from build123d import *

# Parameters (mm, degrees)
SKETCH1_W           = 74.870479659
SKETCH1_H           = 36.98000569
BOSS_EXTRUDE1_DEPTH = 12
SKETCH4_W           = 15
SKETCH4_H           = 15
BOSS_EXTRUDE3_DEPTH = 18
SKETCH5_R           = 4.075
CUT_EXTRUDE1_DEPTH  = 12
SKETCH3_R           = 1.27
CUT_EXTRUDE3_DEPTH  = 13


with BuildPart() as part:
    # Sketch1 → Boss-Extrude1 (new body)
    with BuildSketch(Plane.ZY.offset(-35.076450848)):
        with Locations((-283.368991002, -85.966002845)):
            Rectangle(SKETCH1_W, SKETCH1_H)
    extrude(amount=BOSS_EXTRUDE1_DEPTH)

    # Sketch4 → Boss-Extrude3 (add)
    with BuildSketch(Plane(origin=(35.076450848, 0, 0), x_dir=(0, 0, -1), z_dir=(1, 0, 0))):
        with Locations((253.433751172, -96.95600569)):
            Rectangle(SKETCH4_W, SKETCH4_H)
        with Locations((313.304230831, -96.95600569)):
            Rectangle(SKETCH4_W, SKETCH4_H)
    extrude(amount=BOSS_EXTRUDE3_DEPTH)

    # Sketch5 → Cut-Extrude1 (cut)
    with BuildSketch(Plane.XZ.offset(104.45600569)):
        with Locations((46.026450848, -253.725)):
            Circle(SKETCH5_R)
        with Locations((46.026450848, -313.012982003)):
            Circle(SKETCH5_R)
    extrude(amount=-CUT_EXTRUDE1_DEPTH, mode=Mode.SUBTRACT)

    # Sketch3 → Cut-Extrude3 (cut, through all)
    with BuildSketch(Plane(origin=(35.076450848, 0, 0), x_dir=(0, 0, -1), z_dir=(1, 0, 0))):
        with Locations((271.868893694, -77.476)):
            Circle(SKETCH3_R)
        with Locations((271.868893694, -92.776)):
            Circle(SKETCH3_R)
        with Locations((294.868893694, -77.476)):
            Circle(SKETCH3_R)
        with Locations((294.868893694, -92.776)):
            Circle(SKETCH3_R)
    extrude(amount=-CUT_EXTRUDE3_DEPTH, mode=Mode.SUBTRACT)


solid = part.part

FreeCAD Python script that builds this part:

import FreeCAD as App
import Part
import Sketcher
from FreeCAD import Vector


def add_polygon(sketch, points):
    """Adds a closed chain of lines whose ends are joined by coincident constraints."""
    first, n = sketch.GeometryCount, len(points)
    for a, b in zip(points, points[1:] + points[:1]):
        sketch.addGeometry(Part.LineSegment(App.Vector(*a, 0), App.Vector(*b, 0)), False)
    for i in range(n):
        sketch.addConstraint(Sketcher.Constraint("Coincident", first + i, 2, first + (i + 1) % n, 1))

doc = App.newDocument("Part")
params = doc.addObject("Spreadsheet::Sheet", "Params")
for row, (alias, value) in enumerate([
    ("pad1_length", "12 mm"),
    ("sketch2_width", "15 mm"),
    ("pad2_length", "18 mm"),
    ("sketch3_diameter", "8.15 mm"),
    ("pocket1_length", "12 mm"),
    ("sketch4_diameter", "2.54 mm"),
], start=1):
    params.set(f"A{row}", alias)
    params.set(f"B{row}", "=" + value)
    params.setAlias(f"B{row}", alias)

body = doc.addObject("PartDesign::Body", "Body")

# Sketch on YZ plane
sketch1 = doc.addObject("Sketcher::SketchObject", "Sketch")
body.addObject(sketch1)
sketch1.AttachmentSupport = (doc.YZ_Plane, [""])
sketch1.MapMode = "FlatFace"
sketch1.AttachmentOffset = App.Placement(Vector(0, 0, 35.076451), App.Rotation())
add_polygon(sketch1, [(-67, -321), (-104, -321), (-104, -246), (-67, -246)])  # lines 0-3
sketch1.addConstraint([
    Sketcher.Constraint("Horizontal", 0),
    Sketcher.Constraint("Vertical", 1),
    Sketcher.Constraint("Horizontal", 2),
    Sketcher.Constraint("Vertical", 3),
    Sketcher.Constraint("DistanceX", 2, 2, -1, 1, 67.476),
    Sketcher.Constraint("DistanceY", 1, 1, 1, 2, 74.87048),
    Sketcher.Constraint("DistanceX", 0, 2, 0, 1, 36.980006),
    Sketcher.Constraint("DistanceY", 0, 2, -1, 1, 320.804231),
])
pad1 = doc.addObject("PartDesign::Pad", "Pad")
body.addObject(pad1)
pad1.Profile = sketch1
pad1.setExpression("Length", "Params.pad1_length")
pad1.Reversed = True

# Sketch on YZ plane
sketch2 = doc.addObject("Sketcher::SketchObject", "Sketch001")
body.addObject(sketch2)
sketch2.AttachmentSupport = (doc.YZ_Plane, [""])
sketch2.MapMode = "FlatFace"
sketch2.AttachmentOffset = App.Placement(Vector(0, 0, 35.076451), App.Rotation())
add_polygon(sketch2, [(-89, -246), (-104, -246), (-104, -261), (-89, -261)])  # lines 0-3
add_polygon(sketch2, [(-89, -306), (-104, -306), (-104, -321), (-89, -321)])  # lines 4-7
sketch2.addConstraint([
    Sketcher.Constraint("Horizontal", 0),
    Sketcher.Constraint("Vertical", 1),
    Sketcher.Constraint("Horizontal", 2),
    Sketcher.Constraint("Vertical", 3),
    Sketcher.Constraint("Horizontal", 4),
    Sketcher.Constraint("Vertical", 5),
    Sketcher.Constraint("Horizontal", 6),
    Sketcher.Constraint("Vertical", 7),
    Sketcher.Constraint("Vertical", 1, 2, 4, 2),
    Sketcher.Constraint("Vertical", 3, 2, 6, 2),
    Sketcher.Constraint("Equal", 6, 1),
    Sketcher.Constraint("Equal", 3, 5),
    Sketcher.Constraint("DistanceX", 0, 2, 0, 1, 15.0),
    Sketcher.Constraint("DistanceY", 0, 2, -1, 1, 245.933751),
    Sketcher.Constraint("DistanceY", 4, 2, -1, 1, 305.804231),
    Sketcher.Constraint("DistanceX", 0, 2, -1, 1, 104.456006),
])
sketch2.setExpression("Constraints[20]", "Params.sketch2_width")
pad2 = doc.addObject("PartDesign::Pad", "Pad001")
body.addObject(pad2)
pad2.Profile = sketch2
pad2.setExpression("Length", "Params.pad2_length")

# Sketch on XZ plane
sketch3 = doc.addObject("Sketcher::SketchObject", "Sketch002")
body.addObject(sketch3)
sketch3.AttachmentSupport = (doc.XZ_Plane, [""])
sketch3.MapMode = "FlatFace"
sketch3.AttachmentOffset = App.Placement(Vector(0, 0, 104.456006), App.Rotation())
sketch3.addGeometry([
    Part.Circle(Vector(46, -253.7, 0), Vector(0, 0, 1), 4.1),
    Part.Circle(Vector(46, -313, 0), Vector(0, 0, 1), 4.1),
], False)
sketch3.addConstraint([
    Sketcher.Constraint("Equal", 0, 1),
    Sketcher.Constraint("Vertical", 0, 3, 1, 3),
    Sketcher.Constraint("Diameter", 0, 8.15),
    Sketcher.Constraint("DistanceY", 0, 3, -1, 1, 253.725),
    Sketcher.Constraint("DistanceX", -1, 1, 0, 3, 46.026451),
    Sketcher.Constraint("DistanceY", 1, 3, -1, 1, 313.012982),
])
sketch3.setExpression("Constraints[2]", "Params.sketch3_diameter")
pocket1 = doc.addObject("PartDesign::Pocket", "Pocket")
body.addObject(pocket1)
pocket1.Profile = sketch3
pocket1.setExpression("Length", "Params.pocket1_length")

# Sketch on YZ plane
sketch4 = doc.addObject("Sketcher::SketchObject", "Sketch003")
body.addObject(sketch4)
sketch4.AttachmentSupport = (doc.YZ_Plane, [""])
sketch4.MapMode = "FlatFace"
sketch4.AttachmentOffset = App.Placement(Vector(0, 0, 35.076451), App.Rotation())
sketch4.addGeometry([
    Part.Circle(Vector(-77.5, -271.9, 0), Vector(0, 0, 1), 1.3),
    Part.Circle(Vector(-92.8, -271.9, 0), Vector(0, 0, 1), 1.3),
    Part.Circle(Vector(-77.5, -294.9, 0), Vector(0, 0, 1), 1.3),
    Part.Circle(Vector(-92.8, -294.9, 0), Vector(0, 0, 1), 1.3),
], False)
sketch4.addConstraint([
    Sketcher.Constraint("Equal", 0, 1),
    Sketcher.Constraint("Equal", 1, 2),
    Sketcher.Constraint("Equal", 2, 3),
    Sketcher.Constraint("Horizontal", 0, 3, 1, 3),
    Sketcher.Constraint("Horizontal", 2, 3, 3, 3),
    Sketcher.Constraint("Vertical", 0, 3, 2, 3),
    Sketcher.Constraint("Vertical", 1, 3, 3, 3),
    Sketcher.Constraint("Diameter", 0, 2.54),
    Sketcher.Constraint("DistanceY", 2, 3, 0, 3, 23.0),
    Sketcher.Constraint("DistanceX", 1, 3, 0, 3, 15.3),
    Sketcher.Constraint("DistanceX", 0, 3, -1, 1, 77.476),
    Sketcher.Constraint("DistanceY", 0, 3, -1, 1, 271.868894),
])
sketch4.setExpression("Constraints[7]", "Params.sketch4_diameter")
pocket2 = doc.addObject("PartDesign::Pocket", "Pocket001")
body.addObject(pocket2)
pocket2.Profile = sketch4
pocket2.Type = "ThroughAll"

doc.recompute()
